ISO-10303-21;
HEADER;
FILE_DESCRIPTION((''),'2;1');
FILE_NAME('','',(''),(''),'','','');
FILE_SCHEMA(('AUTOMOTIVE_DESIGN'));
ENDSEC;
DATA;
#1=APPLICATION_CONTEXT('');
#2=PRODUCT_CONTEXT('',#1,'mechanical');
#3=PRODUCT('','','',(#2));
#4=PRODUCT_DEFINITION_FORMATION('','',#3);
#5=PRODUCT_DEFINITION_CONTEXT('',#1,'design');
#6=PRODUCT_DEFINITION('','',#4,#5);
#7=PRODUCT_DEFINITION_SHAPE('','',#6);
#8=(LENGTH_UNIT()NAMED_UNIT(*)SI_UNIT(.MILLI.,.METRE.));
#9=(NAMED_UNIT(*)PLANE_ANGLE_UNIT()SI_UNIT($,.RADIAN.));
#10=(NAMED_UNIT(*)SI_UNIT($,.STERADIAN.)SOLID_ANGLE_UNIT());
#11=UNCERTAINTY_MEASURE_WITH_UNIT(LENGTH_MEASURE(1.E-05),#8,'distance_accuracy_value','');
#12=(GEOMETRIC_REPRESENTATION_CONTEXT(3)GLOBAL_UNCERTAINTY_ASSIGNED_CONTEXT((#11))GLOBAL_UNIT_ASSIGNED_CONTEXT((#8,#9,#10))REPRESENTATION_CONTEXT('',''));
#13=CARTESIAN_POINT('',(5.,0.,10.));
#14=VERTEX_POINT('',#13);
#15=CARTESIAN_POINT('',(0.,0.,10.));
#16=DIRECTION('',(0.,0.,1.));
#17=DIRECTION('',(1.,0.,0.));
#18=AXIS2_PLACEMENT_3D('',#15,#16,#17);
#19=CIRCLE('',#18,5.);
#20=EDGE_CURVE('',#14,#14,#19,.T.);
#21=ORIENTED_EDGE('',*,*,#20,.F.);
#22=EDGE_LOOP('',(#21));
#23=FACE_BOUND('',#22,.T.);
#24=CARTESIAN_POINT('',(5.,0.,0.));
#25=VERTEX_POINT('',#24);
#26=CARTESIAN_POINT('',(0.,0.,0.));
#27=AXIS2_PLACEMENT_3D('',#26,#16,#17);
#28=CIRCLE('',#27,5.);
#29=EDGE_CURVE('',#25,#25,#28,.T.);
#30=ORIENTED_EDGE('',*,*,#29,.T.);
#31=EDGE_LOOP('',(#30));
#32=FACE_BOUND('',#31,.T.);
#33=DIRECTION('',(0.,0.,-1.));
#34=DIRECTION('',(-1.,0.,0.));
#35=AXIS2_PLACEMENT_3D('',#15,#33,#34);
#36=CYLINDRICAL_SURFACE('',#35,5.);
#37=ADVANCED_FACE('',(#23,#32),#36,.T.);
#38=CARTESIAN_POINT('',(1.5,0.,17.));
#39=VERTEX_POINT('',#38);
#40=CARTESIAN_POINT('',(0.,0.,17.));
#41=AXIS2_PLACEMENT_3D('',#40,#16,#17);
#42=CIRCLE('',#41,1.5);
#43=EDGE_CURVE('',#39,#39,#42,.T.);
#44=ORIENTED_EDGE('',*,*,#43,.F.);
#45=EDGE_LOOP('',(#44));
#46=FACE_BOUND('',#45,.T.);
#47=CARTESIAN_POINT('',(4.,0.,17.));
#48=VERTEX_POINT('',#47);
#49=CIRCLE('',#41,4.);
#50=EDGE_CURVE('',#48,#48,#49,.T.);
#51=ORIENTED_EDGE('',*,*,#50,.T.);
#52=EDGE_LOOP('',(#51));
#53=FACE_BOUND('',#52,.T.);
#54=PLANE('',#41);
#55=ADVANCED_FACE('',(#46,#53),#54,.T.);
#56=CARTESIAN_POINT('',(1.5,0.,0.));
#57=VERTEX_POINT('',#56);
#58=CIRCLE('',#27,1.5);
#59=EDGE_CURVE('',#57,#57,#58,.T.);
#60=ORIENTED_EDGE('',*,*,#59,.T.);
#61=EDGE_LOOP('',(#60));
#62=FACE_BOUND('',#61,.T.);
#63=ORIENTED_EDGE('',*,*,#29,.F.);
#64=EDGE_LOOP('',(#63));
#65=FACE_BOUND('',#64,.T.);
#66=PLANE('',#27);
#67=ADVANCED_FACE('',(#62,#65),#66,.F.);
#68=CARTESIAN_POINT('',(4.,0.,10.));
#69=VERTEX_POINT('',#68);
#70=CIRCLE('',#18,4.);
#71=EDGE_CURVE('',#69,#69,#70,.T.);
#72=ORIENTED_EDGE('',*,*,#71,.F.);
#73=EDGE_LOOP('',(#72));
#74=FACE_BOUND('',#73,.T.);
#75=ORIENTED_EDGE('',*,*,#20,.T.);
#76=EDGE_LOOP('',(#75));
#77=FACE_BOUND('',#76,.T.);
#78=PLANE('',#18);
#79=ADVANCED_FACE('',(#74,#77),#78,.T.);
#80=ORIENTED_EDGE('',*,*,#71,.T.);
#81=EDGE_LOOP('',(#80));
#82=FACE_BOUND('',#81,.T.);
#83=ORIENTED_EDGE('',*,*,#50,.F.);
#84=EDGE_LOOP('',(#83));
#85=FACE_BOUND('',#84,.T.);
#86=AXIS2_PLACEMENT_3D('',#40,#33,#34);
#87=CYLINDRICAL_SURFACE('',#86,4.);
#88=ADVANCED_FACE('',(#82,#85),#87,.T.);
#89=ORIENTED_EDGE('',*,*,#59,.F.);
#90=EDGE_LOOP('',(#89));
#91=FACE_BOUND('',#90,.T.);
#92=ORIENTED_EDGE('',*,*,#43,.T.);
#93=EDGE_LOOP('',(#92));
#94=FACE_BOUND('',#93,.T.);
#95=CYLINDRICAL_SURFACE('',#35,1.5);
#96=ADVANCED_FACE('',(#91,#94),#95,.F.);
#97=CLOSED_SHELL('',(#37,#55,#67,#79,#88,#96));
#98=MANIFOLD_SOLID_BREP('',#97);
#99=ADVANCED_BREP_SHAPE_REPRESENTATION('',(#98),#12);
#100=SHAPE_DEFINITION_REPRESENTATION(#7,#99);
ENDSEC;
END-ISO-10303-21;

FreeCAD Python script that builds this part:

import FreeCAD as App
import Part
import Sketcher

V = App.Vector

doc = App.newDocument("Part")
body = doc.addObject("PartDesign::Body", "Body")

# Sketch on XY plane
sketch1 = doc.addObject("Sketcher::SketchObject", "Sketch")
body.addObject(sketch1)
sketch1.AttachmentSupport = (doc.XY_Plane, [""])
sketch1.MapMode = "FlatFace"
sketch1.addGeometry(Part.Circle(V(0, 0, 0), V(0, 0, 1), 5), False)
sketch1.addGeometry(Part.Circle(V(0, 0, 0), V(0, 0, 1), 1.5), False)
sketch1.addConstraint(Sketcher.Constraint("Coincident", 0, 3, -1, 1))
sketch1.addConstraint(Sketcher.Constraint("Coincident", 1, 3, -1, 1))
sketch1.addConstraint(Sketcher.Constraint("Diameter", 0, 10.0))
sketch1.addConstraint(Sketcher.Constraint("Diameter", 1, 3.0))
pad1 = doc.addObject("PartDesign::Pad", "Pad")
body.addObject(pad1)
pad1.Profile = sketch1
pad1.Length = 10

# Sketch on XY plane
sketch2 = doc.addObject("Sketcher::SketchObject", "Sketch001")
body.addObject(sketch2)
sketch2.AttachmentSupport = (doc.XY_Plane, [""])
sketch2.MapMode = "FlatFace"
sketch2.AttachmentOffset = App.Placement(V(0, 0, 10), App.Rotation())
sketch2.addGeometry(Part.Circle(V(0, 0, 0), V(0, 0, 1), 4), False)
sketch2.addGeometry(Part.Circle(V(0, 0, 0), V(0, 0, 1), 1.5), False)
sketch2.addConstraint(Sketcher.Constraint("Coincident", 0, 3, -1, 1))
sketch2.addConstraint(Sketcher.Constraint("Coincident", 1, 3, -1, 1))
sketch2.addConstraint(Sketcher.Constraint("Diameter", 0, 8.0))
sketch2.addConstraint(Sketcher.Constraint("Diameter", 1, 3.0))
pad2 = doc.addObject("PartDesign::Pad", "Pad001")
body.addObject(pad2)
pad2.Profile = sketch2
pad2.Length = 7

doc.recompute()
